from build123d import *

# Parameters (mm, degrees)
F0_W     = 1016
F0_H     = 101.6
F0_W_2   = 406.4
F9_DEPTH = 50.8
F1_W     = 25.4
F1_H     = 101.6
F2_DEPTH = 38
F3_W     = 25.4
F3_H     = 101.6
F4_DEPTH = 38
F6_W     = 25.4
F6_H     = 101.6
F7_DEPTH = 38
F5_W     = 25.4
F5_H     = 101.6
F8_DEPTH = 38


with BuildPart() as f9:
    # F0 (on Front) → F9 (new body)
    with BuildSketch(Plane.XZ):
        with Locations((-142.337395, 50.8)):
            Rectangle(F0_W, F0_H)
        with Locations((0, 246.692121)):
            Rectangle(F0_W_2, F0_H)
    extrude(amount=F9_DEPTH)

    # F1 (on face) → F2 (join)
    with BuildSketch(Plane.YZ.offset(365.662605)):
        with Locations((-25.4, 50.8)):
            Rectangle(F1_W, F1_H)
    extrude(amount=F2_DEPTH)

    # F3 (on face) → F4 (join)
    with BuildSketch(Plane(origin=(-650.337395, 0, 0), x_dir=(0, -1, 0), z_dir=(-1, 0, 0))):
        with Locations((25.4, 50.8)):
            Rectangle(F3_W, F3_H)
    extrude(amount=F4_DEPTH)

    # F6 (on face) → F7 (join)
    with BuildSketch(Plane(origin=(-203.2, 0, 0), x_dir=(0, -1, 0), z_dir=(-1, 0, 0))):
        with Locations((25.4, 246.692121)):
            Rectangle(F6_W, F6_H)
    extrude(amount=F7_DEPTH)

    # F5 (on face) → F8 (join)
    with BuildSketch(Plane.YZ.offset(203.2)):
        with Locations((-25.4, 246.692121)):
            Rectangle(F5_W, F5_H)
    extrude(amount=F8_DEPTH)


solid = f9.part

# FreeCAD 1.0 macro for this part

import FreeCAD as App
import Part
import Sketcher
from FreeCAD import Vector
Q = App.Units.Quantity


def add_polygon(sketch, points):
    """Adds a closed chain of lines whose ends are joined by coincident constraints."""
    first, n = sketch.GeometryCount, len(points)
    for a, b in zip(points, points[1:] + points[:1]):
        sketch.addGeometry(Part.LineSegment(App.Vector(*a, 0), App.Vector(*b, 0)), False)
    for i in range(n):
        sketch.addConstraint(Sketcher.Constraint("Coincident", first + i, 2, first + (i + 1) % n, 1))

doc = App.newDocument("Part")
body = doc.addObject("PartDesign::Body", "Body")
body.AllowCompound = True

sketch1 = body.newObject("Sketcher::SketchObject", "Sketch")
sketch1.AttachmentSupport = (doc.getObject("XZ_Plane"), [""])
sketch1.MapMode = "FlatFace"
add_polygon(sketch1, [(-650, 102), (-650, 0), (366, 0), (366, 102)])
add_polygon(sketch1, [(-203, 297), (-203, 196), (203, 196), (203, 297)])
sketch1.addConstraint(Sketcher.Constraint("Vertical", 0))
sketch1.addConstraint(Sketcher.Constraint("Horizontal", 1))
sketch1.addConstraint(Sketcher.Constraint("Vertical", 2))
sketch1.addConstraint(Sketcher.Constraint("Horizontal", 3))
sketch1.addConstraint(Sketcher.Constraint("Vertical", 4))
sketch1.addConstraint(Sketcher.Constraint("Horizontal", 5))
sketch1.addConstraint(Sketcher.Constraint("Vertical", 6))
sketch1.addConstraint(Sketcher.Constraint("Horizontal", 7))
sketch1.addConstraint(Sketcher.Constraint("PointOnObject", 0, 2, -1))
sketch1.addConstraint(Sketcher.Constraint("Equal", 2, 4))
sketch1.addConstraint(Sketcher.Constraint("DistanceX", 1, 1, 1, 2, Q("40 in")))
sketch1.addConstraint(Sketcher.Constraint("DistanceX", 5, 1, 5, 2, Q("16 in")))
sketch1.addConstraint(Sketcher.Constraint("DistanceY", 0, 2, 0, 1, Q("4 in")))
sketch1.addConstraint(Sketcher.Constraint("DistanceX", 4, 2, -1, 1, Q("8 in")))
sketch1.addConstraint(Sketcher.Constraint("DistanceY", -1, 1, 4, 2, Q("195.892121 mm")))
sketch1.addConstraint(Sketcher.Constraint("DistanceX", 0, 2, -1, 1, Q("650.337395 mm")))
pad1 = body.newObject("PartDesign::Pad", "Pad")
pad1.Profile = sketch1
pad1.Length = Q("2 in")

sketch2 = body.newObject("Sketcher::SketchObject", "Sketch001")
sketch2.AttachmentSupport = (doc.getObject("YZ_Plane"), [""])
sketch2.MapMode = "FlatFace"
sketch2.AttachmentOffset = App.Placement(Vector(0, 0, 365.662605), App.Rotation())
add_polygon(sketch2, [(-38, 102), (-38, 0), (-13, 0), (-13, 102)])
sketch2.addConstraint(Sketcher.Constraint("Vertical", 0))
sketch2.addConstraint(Sketcher.Constraint("Horizontal", 1))
sketch2.addConstraint(Sketcher.Constraint("Vertical", 2))
sketch2.addConstraint(Sketcher.Constraint("Horizontal", 3))
sketch2.addConstraint(Sketcher.Constraint("PointOnObject", 0, 2, -1))
sketch2.addConstraint(Sketcher.Constraint("DistanceX", 1, 1, 1, 2, Q("1 in")))
sketch2.addConstraint(Sketcher.Constraint("DistanceY", 0, 2, 0, 1, Q("4 in")))
sketch2.addConstraint(Sketcher.Constraint("DistanceX", 0, 2, -1, 1, Q("1.5 in")))
pad2 = body.newObject("PartDesign::Pad", "Pad001")
pad2.Profile = sketch2
pad2.Length = 38

sketch3 = body.newObject("Sketcher::SketchObject", "Sketch002")
sketch3.AttachmentSupport = (doc.getObject("YZ_Plane"), [""])
sketch3.MapMode = "FlatFace"
sketch3.AttachmentOffset = App.Placement(Vector(0, 0, -650.337395), App.Rotation())
add_polygon(sketch3, [(-13, 102), (-13, 0), (-38, 0), (-38, 102)])
sketch3.addConstraint(Sketcher.Constraint("Vertical", 0))
sketch3.addConstraint(Sketcher.Constraint("Horizontal", 1))
sketch3.addConstraint(Sketcher.Constraint("Vertical", 2))
sketch3.addConstraint(Sketcher.Constraint("Horizontal", 3))
sketch3.addConstraint(Sketcher.Constraint("PointOnObject", 0, 2, -1))
sketch3.addConstraint(Sketcher.Constraint("DistanceX", 1, 2, 1, 1, Q("1 in")))
sketch3.addConstraint(Sketcher.Constraint("DistanceY", 0, 2, 0, 1, Q("4 in")))
sketch3.addConstraint(Sketcher.Constraint("DistanceX", 0, 2, -1, 1, Q("0.5 in")))
pad3 = body.newObject("PartDesign::Pad", "Pad002")
pad3.Profile = sketch3
pad3.Length = 38
pad3.Reversed = True

sketch4 = body.newObject("Sketcher::SketchObject", "Sketch003")
sketch4.AttachmentSupport = (doc.getObject("YZ_Plane"), [""])
sketch4.MapMode = "FlatFace"
sketch4.AttachmentOffset = App.Placement(Vector(0, 0, -8 * 25.4), App.Rotation())
add_polygon(sketch4, [(-13, 297), (-13, 196), (-38, 196), (-38, 297)])
sketch4.addConstraint(Sketcher.Constraint("Vertical", 0))
sketch4.addConstraint(Sketcher.Constraint("Horizontal", 1))
sketch4.addConstraint(Sketcher.Constraint("Vertical", 2))
sketch4.addConstraint(Sketcher.Constraint("Horizontal", 3))
sketch4.addConstraint(Sketcher.Constraint("DistanceX", 1, 2, 1, 1, Q("1 in")))
sketch4.addConstraint(Sketcher.Constraint("DistanceY", 0, 2, 0, 1, Q("4 in")))
sketch4.addConstraint(Sketcher.Constraint("DistanceX", 0, 2, -1, 1, Q("0.5 in")))
sketch4.addConstraint(Sketcher.Constraint("DistanceY", -1, 1, 0, 2, Q("195.892121 mm")))
pad4 = body.newObject("PartDesign::Pad", "Pad003")
pad4.Profile = sketch4
pad4.Length = 38
pad4.Reversed = True

sketch5 = body.newObject("Sketcher::SketchObject", "Sketch004")
sketch5.AttachmentSupport = (doc.getObject("YZ_Plane"), [""])
sketch5.MapMode = "FlatFace"
sketch5.AttachmentOffset = App.Placement(Vector(0, 0, 8 * 25.4), App.Rotation())
add_polygon(sketch5, [(-38, 297), (-38, 196), (-13, 196), (-13, 297)])
sketch5.addConstraint(Sketcher.Constraint("Vertical", 0))
sketch5.addConstraint(Sketcher.Constraint("Horizontal", 1))
sketch5.addConstraint(Sketcher.Constraint("Vertical", 2))
sketch5.addConstraint(Sketcher.Constraint("Horizontal", 3))
sketch5.addConstraint(Sketcher.Constraint("DistanceX", 1, 1, 1, 2, Q("1 in")))
sketch5.addConstraint(Sketcher.Constraint("DistanceY", 0, 2, 0, 1, Q("4 in")))
sketch5.addConstraint(Sketcher.Constraint("DistanceX", 0, 2, -1, 1, Q("1.5 in")))
sketch5.addConstraint(Sketcher.Constraint("DistanceY", -1, 1, 0, 2, Q("195.892121 mm")))
pad5 = body.newObject("PartDesign::Pad", "Pad004")
pad5.Profile = sketch5
pad5.Length = 38

doc.recompute()
